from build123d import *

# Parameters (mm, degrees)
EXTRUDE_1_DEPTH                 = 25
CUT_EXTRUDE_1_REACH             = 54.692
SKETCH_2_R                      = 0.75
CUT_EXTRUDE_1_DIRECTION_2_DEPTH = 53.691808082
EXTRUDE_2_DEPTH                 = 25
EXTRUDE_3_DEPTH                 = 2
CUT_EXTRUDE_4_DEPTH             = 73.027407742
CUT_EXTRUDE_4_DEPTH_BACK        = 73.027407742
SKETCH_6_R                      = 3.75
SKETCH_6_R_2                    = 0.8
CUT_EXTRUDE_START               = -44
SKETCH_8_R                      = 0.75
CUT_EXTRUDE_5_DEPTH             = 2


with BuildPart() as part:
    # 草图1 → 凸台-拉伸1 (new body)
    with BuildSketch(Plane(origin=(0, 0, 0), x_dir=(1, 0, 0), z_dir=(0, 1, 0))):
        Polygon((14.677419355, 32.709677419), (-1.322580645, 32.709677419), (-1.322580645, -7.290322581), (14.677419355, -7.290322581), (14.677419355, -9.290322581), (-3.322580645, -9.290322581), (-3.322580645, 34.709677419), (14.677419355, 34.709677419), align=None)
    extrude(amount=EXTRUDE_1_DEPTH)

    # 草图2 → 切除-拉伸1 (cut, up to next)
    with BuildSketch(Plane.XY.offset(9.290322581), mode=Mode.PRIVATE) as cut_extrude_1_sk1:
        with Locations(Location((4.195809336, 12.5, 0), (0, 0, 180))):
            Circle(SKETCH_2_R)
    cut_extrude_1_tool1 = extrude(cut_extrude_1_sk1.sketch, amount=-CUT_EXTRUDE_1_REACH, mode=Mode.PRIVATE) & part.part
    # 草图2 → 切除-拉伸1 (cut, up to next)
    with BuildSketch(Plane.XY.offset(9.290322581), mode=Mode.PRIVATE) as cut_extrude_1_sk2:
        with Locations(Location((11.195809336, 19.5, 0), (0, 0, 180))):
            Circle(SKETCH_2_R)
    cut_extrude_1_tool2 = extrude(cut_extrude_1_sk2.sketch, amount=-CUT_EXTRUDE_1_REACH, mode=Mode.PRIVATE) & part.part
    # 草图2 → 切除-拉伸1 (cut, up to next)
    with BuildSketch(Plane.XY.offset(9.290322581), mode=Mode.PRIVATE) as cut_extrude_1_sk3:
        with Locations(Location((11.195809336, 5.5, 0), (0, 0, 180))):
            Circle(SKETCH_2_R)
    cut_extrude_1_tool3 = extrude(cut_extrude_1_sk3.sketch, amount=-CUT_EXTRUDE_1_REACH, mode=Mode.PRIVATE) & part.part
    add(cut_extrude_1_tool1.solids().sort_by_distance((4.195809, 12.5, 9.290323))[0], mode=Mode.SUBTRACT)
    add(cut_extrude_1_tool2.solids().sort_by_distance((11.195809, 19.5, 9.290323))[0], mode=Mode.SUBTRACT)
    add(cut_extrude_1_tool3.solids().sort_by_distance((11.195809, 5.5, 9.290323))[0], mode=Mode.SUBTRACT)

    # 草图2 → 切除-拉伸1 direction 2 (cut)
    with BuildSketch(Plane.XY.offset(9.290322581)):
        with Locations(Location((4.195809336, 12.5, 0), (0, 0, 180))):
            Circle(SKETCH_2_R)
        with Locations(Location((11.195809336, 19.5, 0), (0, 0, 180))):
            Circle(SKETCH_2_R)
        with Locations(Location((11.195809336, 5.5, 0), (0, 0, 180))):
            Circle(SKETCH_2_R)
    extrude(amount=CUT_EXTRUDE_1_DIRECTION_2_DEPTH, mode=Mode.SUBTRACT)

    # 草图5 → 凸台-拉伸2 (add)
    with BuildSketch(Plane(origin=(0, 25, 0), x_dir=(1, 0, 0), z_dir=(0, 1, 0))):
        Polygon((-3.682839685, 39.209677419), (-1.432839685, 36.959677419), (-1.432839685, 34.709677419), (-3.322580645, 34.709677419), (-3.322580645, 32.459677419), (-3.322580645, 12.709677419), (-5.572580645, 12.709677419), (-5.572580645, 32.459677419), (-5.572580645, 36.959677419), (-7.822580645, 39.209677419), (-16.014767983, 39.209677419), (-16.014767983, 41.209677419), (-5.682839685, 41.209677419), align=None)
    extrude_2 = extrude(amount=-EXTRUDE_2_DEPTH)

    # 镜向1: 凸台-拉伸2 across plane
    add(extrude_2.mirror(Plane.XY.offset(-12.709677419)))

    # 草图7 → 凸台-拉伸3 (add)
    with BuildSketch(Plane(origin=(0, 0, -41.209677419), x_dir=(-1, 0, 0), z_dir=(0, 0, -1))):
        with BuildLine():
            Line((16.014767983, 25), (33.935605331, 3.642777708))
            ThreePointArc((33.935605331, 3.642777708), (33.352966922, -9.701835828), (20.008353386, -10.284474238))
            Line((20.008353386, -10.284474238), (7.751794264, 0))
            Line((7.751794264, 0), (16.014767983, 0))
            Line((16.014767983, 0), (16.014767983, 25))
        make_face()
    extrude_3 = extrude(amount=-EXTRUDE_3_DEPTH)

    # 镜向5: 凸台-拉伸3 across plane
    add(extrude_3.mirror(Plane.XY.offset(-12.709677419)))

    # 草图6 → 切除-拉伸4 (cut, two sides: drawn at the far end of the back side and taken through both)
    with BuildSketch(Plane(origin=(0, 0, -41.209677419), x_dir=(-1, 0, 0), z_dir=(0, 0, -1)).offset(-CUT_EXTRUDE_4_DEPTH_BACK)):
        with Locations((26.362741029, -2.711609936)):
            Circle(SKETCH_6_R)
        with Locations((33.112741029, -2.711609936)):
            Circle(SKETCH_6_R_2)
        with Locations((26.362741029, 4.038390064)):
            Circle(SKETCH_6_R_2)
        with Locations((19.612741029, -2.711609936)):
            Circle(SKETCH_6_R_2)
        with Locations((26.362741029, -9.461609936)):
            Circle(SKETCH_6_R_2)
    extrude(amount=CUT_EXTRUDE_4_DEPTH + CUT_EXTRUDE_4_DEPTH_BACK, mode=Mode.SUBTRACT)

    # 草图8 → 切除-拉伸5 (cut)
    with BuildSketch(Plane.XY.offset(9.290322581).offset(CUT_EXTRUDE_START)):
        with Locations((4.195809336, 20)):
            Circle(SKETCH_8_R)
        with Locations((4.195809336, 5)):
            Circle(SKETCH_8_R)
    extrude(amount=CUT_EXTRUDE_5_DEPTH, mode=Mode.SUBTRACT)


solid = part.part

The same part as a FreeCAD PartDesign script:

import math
import FreeCAD as App
import Part
import Sketcher
from FreeCAD import Vector
Q = App.Units.Quantity

doc = App.newDocument("Part")
body = doc.addObject("PartDesign::Body", "Body")

sketch1 = body.newObject("Sketcher::SketchObject", "Sketch")
sketch1.AttachmentSupport = (doc.getObject("XZ_Plane"), [""])
sketch1.MapMode = "FlatFace"
sketch1.addGeometry(Part.LineSegment(Vector(-1.3, -32.7, 0), Vector(14.7, -32.7, 0)), False)
sketch1.addGeometry(Part.LineSegment(Vector(14.7, -32.7, 0), Vector(14.7, -34.7, 0)), False)
sketch1.addGeometry(Part.LineSegment(Vector(14.7, -34.7, 0), Vector(-3.3, -34.7, 0)), False)
sketch1.addGeometry(Part.LineSegment(Vector(-3.3, -34.7, 0), Vector(-3.3, 9.3, 0)), False)
sketch1.addGeometry(Part.LineSegment(Vector(-3.3, 9.3, 0), Vector(14.7, 9.3, 0)), False)
sketch1.addGeometry(Part.LineSegment(Vector(14.7, 9.3, 0), Vector(14.7, 7.3, 0)), False)
sketch1.addGeometry(Part.LineSegment(Vector(14.7, 7.3, 0), Vector(-1.3, 7.3, 0)), False)
sketch1.addGeometry(Part.LineSegment(Vector(-1.3, 7.3, 0), Vector(-1.3, -32.7, 0)), False)
sketch1.addConstraint(Sketcher.Constraint("Coincident", 0, 2, 1, 1))
sketch1.addConstraint(Sketcher.Constraint("Coincident", 1, 2, 2, 1))
sketch1.addConstraint(Sketcher.Constraint("Coincident", 2, 2, 3, 1))
sketch1.addConstraint(Sketcher.Constraint("Coincident", 3, 2, 4, 1))
sketch1.addConstraint(Sketcher.Constraint("Coincident", 4, 2, 5, 1))
sketch1.addConstraint(Sketcher.Constraint("Coincident", 5, 2, 6, 1))
sketch1.addConstraint(Sketcher.Constraint("Coincident", 6, 2, 7, 1))
sketch1.addConstraint(Sketcher.Constraint("Coincident", 7, 2, 0, 1))
sketch1.addConstraint(Sketcher.Constraint("Horizontal", 0))
sketch1.addConstraint(Sketcher.Constraint("Vertical", 1))
sketch1.addConstraint(Sketcher.Constraint("Horizontal", 2))
sketch1.addConstraint(Sketcher.Constraint("Vertical", 3))
sketch1.addConstraint(Sketcher.Constraint("Horizontal", 4))
sketch1.addConstraint(Sketcher.Constraint("Vertical", 5))
sketch1.addConstraint(Sketcher.Constraint("Horizontal", 6))
sketch1.addConstraint(Sketcher.Constraint("Vertical", 7))
sketch1.addConstraint(Sketcher.Constraint("Vertical", 1, 2, 4, 2))
sketch1.addConstraint(Sketcher.Constraint("Equal", 1, 5))
sketch1.addConstraint(Sketcher.Constraint("DistanceX", 0, 1, 0, 2, Q("16 mm")))
sketch1.addConstraint(Sketcher.Constraint("DistanceX", 2, 2, 2, 1, Q("18 mm")))
sketch1.addConstraint(Sketcher.Constraint("DistanceY", 1, 2, 1, 1, Q("2 mm")))
sketch1.addConstraint(Sketcher.Constraint("DistanceY", 3, 1, 3, 2, Q("44 mm")))
sketch1.addConstraint(Sketcher.Constraint("DistanceX", -1, 1, 0, 2, Q("14.677419 mm")))
sketch1.addConstraint(Sketcher.Constraint("DistanceY", 0, 2, -1, 1, Q("32.709677 mm")))
pad1 = body.newObject("PartDesign::Pad", "Pad")
pad1.Profile = sketch1
pad1.Length = 25
pad1.Reversed = True

sketch2 = body.newObject("Sketcher::SketchObject", "Sketch001")
sketch2.AttachmentSupport = (doc.getObject("XY_Plane"), [""])
sketch2.MapMode = "FlatFace"
sketch2.AttachmentOffset = App.Placement(Vector(0, 0, 9.290323), App.Rotation())
sketch2.addGeometry(Part.Circle(Vector(4.2, 12.5, 0), Vector(0, 0, 1), 0.8), False)
sketch2.addConstraint(Sketcher.Constraint("Diameter", 0, Q("1.5 mm")))
sketch2.addConstraint(Sketcher.Constraint("DistanceY", -1, 1, 0, 3, Q("12.5 mm")))
sketch2.addConstraint(Sketcher.Constraint("DistanceX", -1, 1, 0, 3, Q("4.195809 mm")))
pocket1 = body.newObject("PartDesign::Pocket", "Pocket")
pocket1.Profile = sketch2
pocket1.Type = "UpToFirst"

sketch3 = body.newObject("Sketcher::SketchObject", "Sketch002")
sketch3.AttachmentSupport = (doc.getObject("XY_Plane"), [""])
sketch3.MapMode = "FlatFace"
sketch3.AttachmentOffset = App.Placement(Vector(0, 0, 9.290323), App.Rotation())
sketch3.addGeometry(Part.Circle(Vector(11.2, 19.5, 0), Vector(0, 0, 1), 0.8), False)
sketch3.addConstraint(Sketcher.Constraint("Diameter", 0, Q("1.5 mm")))
sketch3.addConstraint(Sketcher.Constraint("DistanceY", -1, 1, 0, 3, Q("19.5 mm")))
sketch3.addConstraint(Sketcher.Constraint("DistanceX", -1, 1, 0, 3, Q("11.195809 mm")))
pocket2 = body.newObject("PartDesign::Pocket", "Pocket001")
pocket2.Profile = sketch3
pocket2.Type = "UpToFirst"

sketch4 = body.newObject("Sketcher::SketchObject", "Sketch003")
sketch4.AttachmentSupport = (doc.getObject("XY_Plane"), [""])
sketch4.MapMode = "FlatFace"
sketch4.AttachmentOffset = App.Placement(Vector(0, 0, 9.290323), App.Rotation())
sketch4.addGeometry(Part.Circle(Vector(11.2, 5.5, 0), Vector(0, 0, 1), 0.8), False)
sketch4.addConstraint(Sketcher.Constraint("Diameter", 0, Q("1.5 mm")))
sketch4.addConstraint(Sketcher.Constraint("DistanceY", -1, 1, 0, 3, Q("5.5 mm")))
sketch4.addConstraint(Sketcher.Constraint("DistanceX", -1, 1, 0, 3, Q("11.195809 mm")))
pocket3 = body.newObject("PartDesign::Pocket", "Pocket002")
pocket3.Profile = sketch4
pocket3.Type = "UpToFirst"

sketch5 = body.newObject("Sketcher::SketchObject", "Sketch004")
sketch5.AttachmentSupport = (doc.getObject("XY_Plane"), [""])
sketch5.MapMode = "FlatFace"
sketch5.AttachmentOffset = App.Placement(Vector(0, 0, 9.290323), App.Rotation())
sketch5.addGeometry(Part.Circle(Vector(4.2, 12.5, 0), Vector(0, 0, 1), 0.8), False)
sketch5.addGeometry(Part.Circle(Vector(11.2, 19.5, 0), Vector(0, 0, 1), 0.8), False)
sketch5.addGeometry(Part.Circle(Vector(11.2, 5.5, 0), Vector(0, 0, 1), 0.8), False)
sketch5.addConstraint(Sketcher.Constraint("Equal", 0, 1))
sketch5.addConstraint(Sketcher.Constraint("Equal", 1, 2))
sketch5.addConstraint(Sketcher.Constraint("Vertical", 1, 3, 2, 3))
sketch5.addConstraint(Sketcher.Constraint("Diameter", 0, Q("1.5 mm")))
sketch5.addConstraint(Sketcher.Constraint("DistanceX", 0, 3, 1, 3, Q("7 mm")))
sketch5.addConstraint(Sketcher.Constraint("DistanceY", 0, 3, 1, 3, Q("7 mm")))
sketch5.addConstraint(Sketcher.Constraint("DistanceY", 2, 3, 0, 3, Q("7 mm")))
sketch5.addConstraint(Sketcher.Constraint("DistanceY", -1, 1, 0, 3, Q("12.5 mm")))
sketch5.addConstraint(Sketcher.Constraint("DistanceX", -1, 1, 0, 3, Q("4.195809 mm")))
pocket4 = body.newObject("PartDesign::Pocket", "Pocket003")
pocket4.Profile = sketch5
pocket4.Length = 53.691808
pocket4.Reversed = True

sketch6 = body.newObject("Sketcher::SketchObject", "Sketch005")
sketch6.AttachmentSupport = (doc.getObject("XZ_Plane"), [""])
sketch6.MapMode = "FlatFace"
sketch6.AttachmentOffset = App.Placement(Vector(0, 0, -25), App.Rotation())
sketch6.addGeometry(Part.LineSegment(Vector(-1.4, -37, 0), Vector(-5.7, -41.2, 0)), False)
sketch6.addGeometry(Part.LineSegment(Vector(-5.7, -41.2, 0), Vector(-16, -41.2, 0)), False)
sketch6.addGeometry(Part.LineSegment(Vector(-16, -41.2, 0), Vector(-16, -39.2, 0)), False)
sketch6.addGeometry(Part.LineSegment(Vector(-16, -39.2, 0), Vector(-7.8, -39.2, 0)), False)
sketch6.addGeometry(Part.LineSegment(Vector(-7.8, -39.2, 0), Vector(-5.6, -37, 0)), False)
sketch6.addGeometry(Part.LineSegment(Vector(-5.6, -37, 0), Vector(-5.6, -12.7, 0)), False)
sketch6.addGeometry(Part.LineSegment(Vector(-5.6, -12.7, 0), Vector(-3.3, -12.7, 0)), False)
sketch6.addGeometry(Part.LineSegment(Vector(-3.3, -12.7, 0), Vector(-3.3, -34.7, 0)), False)
sketch6.addGeometry(Part.LineSegment(Vector(-3.3, -34.7, 0), Vector(-1.4, -34.7, 0)), False)
sketch6.addGeometry(Part.LineSegment(Vector(-1.4, -34.7, 0), Vector(-1.4, -37, 0)), False)
sketch6.addConstraint(Sketcher.Constraint("Coincident", 0, 2, 1, 1))
sketch6.addConstraint(Sketcher.Constraint("Coincident", 1, 2, 2, 1))
sketch6.addConstraint(Sketcher.Constraint("Coincident", 2, 2, 3, 1))
sketch6.addConstraint(Sketcher.Constraint("Coincident", 3, 2, 4, 1))
sketch6.addConstraint(Sketcher.Constraint("Coincident", 4, 2, 5, 1))
sketch6.addConstraint(Sketcher.Constraint("Coincident", 5, 2, 6, 1))
sketch6.addConstraint(Sketcher.Constraint("Coincident", 6, 2, 7, 1))
sketch6.addConstraint(Sketcher.Constraint("Coincident", 7, 2, 8, 1))
sketch6.addConstraint(Sketcher.Constraint("Coincident", 8, 2, 9, 1))
sketch6.addConstraint(Sketcher.Constraint("Coincident", 9, 2, 0, 1))
sketch6.addConstraint(Sketcher.Constraint("Horizontal", 1))
sketch6.addConstraint(Sketcher.Constraint("Vertical", 2))
sketch6.addConstraint(Sketcher.Constraint("Horizontal", 3))
sketch6.addConstraint(Sketcher.Constraint("Vertical", 5))
sketch6.addConstraint(Sketcher.Constraint("Horizontal", 6))
sketch6.addConstraint(Sketcher.Constraint("Vertical", 7))
sketch6.addConstraint(Sketcher.Constraint("Horizontal", 8))
sketch6.addConstraint(Sketcher.Constraint("Vertical", 9))
sketch6.addConstraint(Sketcher.Constraint("Parallel", 0, 4))
sketch6.addConstraint(Sketcher.Constraint("Horizontal", 4, 2, 9, 2))
sketch6.addConstraint(Sketcher.Constraint("Equal", 6, 9))
sketch6.addConstraint(Sketcher.Constraint("DistanceY", 2, 1, 2, 2, Q("2 mm")))
sketch6.addConstraint(Sketcher.Constraint("DistanceY", 7, 2, 7, 1, Q("22 mm")))
sketch6.addConstraint(Sketcher.Constraint("Angle", 0, Q("-135 deg")))
sketch6.addConstraint(Sketcher.Constraint("DistanceX", 6, 1, 6, 2, Q("2.25 mm")))
sketch6.addConstraint(Sketcher.Constraint("DistanceY", 3, 2, 5, 2, Q("26.5 mm")))
sketch6.addConstraint(Sketcher.Constraint("DistanceX", 1, 2, 1, 1, Q("10.331928 mm")))
sketch6.addConstraint(Sketcher.Constraint("DistanceX", 8, 1, 8, 2, Q("1.889741 mm")))
sketch6.addConstraint(Sketcher.Constraint("DistanceX", 0, 2, -1, 1, Q("5.68284 mm")))
sketch6.addConstraint(Sketcher.Constraint("DistanceY", 0, 2, -1, 1, Q("41.209677 mm")))
pad2 = body.newObject("PartDesign::Pad", "Pad001")
pad2.Profile = sketch6
pad2.Length = 25
doc.recompute()

datumplane = body.newObject("PartDesign::Plane", "DatumPlane")
datumplane.AttachmentSupport = (doc.getObject("XY_Plane"), [""])
datumplane.MapMode = "FlatFace"
datumplane.AttachmentOffset = App.Placement(Vector(0, 0, -12.709677), App.Rotation())
mirrored = body.newObject("PartDesign::Mirrored", "Mirrored")
mirrored.Originals = [pad2]
mirrored.MirrorPlane = (datumplane, [""])
body.Tip = mirrored

sketch7 = body.newObject("Sketcher::SketchObject", "Sketch006")
sketch7.AttachmentSupport = (doc.getObject("XY_Plane"), [""])
sketch7.MapMode = "FlatFace"
sketch7.AttachmentOffset = App.Placement(Vector(0, 0, -41.209677), App.Rotation())
sketch7.addGeometry(Part.LineSegment(Vector(-34, 4, 0), Vector(-16, 25, 0)), False)
sketch7.addGeometry(Part.LineSegment(Vector(-16, 25, 0), Vector(-16, 0, 0)), False)
sketch7.addGeometry(Part.LineSegment(Vector(-16, 0, 0), Vector(-8, 0, 0)), False)
sketch7.addGeometry(Part.LineSegment(Vector(-8, 0, 0), Vector(-20, -10, 0)), False)
sketch7.addGeometry(Part.ArcOfCircle(Part.Circle(Vector(-26, -3, 0), Vector(0, 0, 1), 10), math.radians(140), math.radians(310)), False)
sketch7.addConstraint(Sketcher.Constraint("Coincident", 0, 2, 1, 1))
sketch7.addConstraint(Sketcher.Constraint("Coincident", 1, 2, 2, 1))
sketch7.addConstraint(Sketcher.Constraint("Coincident", 2, 2, 3, 1))
sketch7.addConstraint(Sketcher.Constraint("Tangent", 3, 2, 4, 2))
sketch7.addConstraint(Sketcher.Constraint("Tangent", 4, 1, 0, 1))
sketch7.addConstraint(Sketcher.Constraint("Vertical", 1))
sketch7.addConstraint(Sketcher.Constraint("Horizontal", 2))
sketch7.addConstraint(Sketcher.Constraint("PointOnObject", 1, 2, -1))
sketch7.addConstraint(Sketcher.Constraint("DistanceY", 1, 2, 1, 1, Q("25 mm")))
sketch7.addConstraint(Sketcher.Constraint("Angle", 0, Q("50 deg")))
sketch7.addConstraint(Sketcher.Constraint("Angle", 3, Q("-140 deg")))
sketch7.addConstraint(Sketcher.Constraint("Radius", 4, Q("9.885672 mm")))
sketch7.addConstraint(Sketcher.Constraint("Distance", 3, Q("15.999802 mm")))
sketch7.addConstraint(Sketcher.Constraint("DistanceX", 4, 3, -1, 1, Q("26.362741 mm")))
pad3 = body.newObject("PartDesign::Pad", "Pad002")
pad3.Profile = sketch7
pad3.Length = 2
doc.recompute()

datumplane2 = body.newObject("PartDesign::Plane", "DatumPlane001")
datumplane2.AttachmentSupport = (doc.getObject("XY_Plane"), [""])
datumplane2.MapMode = "FlatFace"
datumplane2.AttachmentOffset = App.Placement(Vector(0, 0, -12.709677), App.Rotation())
mirrored2 = body.newObject("PartDesign::Mirrored", "Mirrored001")
mirrored2.Originals = [pad3]
mirrored2.MirrorPlane = (datumplane2, [""])
body.Tip = mirrored2

sketch8 = body.newObject("Sketcher::SketchObject", "Sketch007")
sketch8.AttachmentSupport = (doc.getObject("XY_Plane"), [""])
sketch8.MapMode = "FlatFace"
sketch8.AttachmentOffset = App.Placement(Vector(0, 0, -41.209677), App.Rotation())
sketch8.addGeometry(Part.Circle(Vector(-26.4, -2.7, 0), Vector(0, 0, 1), 3.8), False)
sketch8.addGeometry(Part.Circle(Vector(-33.1, -2.7, 0), Vector(0, 0, 1), 0.8), False)
sketch8.addGeometry(Part.Circle(Vector(-26.4, 4, 0), Vector(0, 0, 1), 0.8), False)
sketch8.addGeometry(Part.Circle(Vector(-19.6, -2.7, 0), Vector(0, 0, 1), 0.8), False)
sketch8.addGeometry(Part.Circle(Vector(-26.4, -9.5, 0), Vector(0, 0, 1), 0.8), False)
sketch8.addConstraint(Sketcher.Constraint("Equal", 1, 2))
sketch8.addConstraint(Sketcher.Constraint("Equal", 2, 3))
sketch8.addConstraint(Sketcher.Constraint("Equal", 3, 4))
sketch8.addConstraint(Sketcher.Constraint("Horizontal", 0, 3, 1, 3))
sketch8.addConstraint(Sketcher.Constraint("Horizontal", 1, 3, 3, 3))
sketch8.addConstraint(Sketcher.Constraint("Vertical", 0, 3, 2, 3))
sketch8.addConstraint(Sketcher.Constraint("Vertical", 2, 3, 4, 3))
sketch8.addConstraint(Sketcher.Constraint("Diameter", 0, Q("7.5 mm")))
sketch8.addConstraint(Sketcher.Constraint("Diameter", 1, Q("1.6 mm")))
sketch8.addConstraint(Sketcher.Constraint("DistanceX", 1, 3, 3, 3, Q("13.5 mm")))
sketch8.addConstraint(Sketcher.Constraint("DistanceY", 4, 3, 2, 3, Q("13.5 mm")))
sketch8.addConstraint(Sketcher.Constraint("DistanceX", 1, 3, 0, 3, Q("6.75 mm")))
sketch8.addConstraint(Sketcher.Constraint("DistanceY", 0, 3, 2, 3, Q("6.75 mm")))
sketch8.addConstraint(Sketcher.Constraint("DistanceX", 0, 3, -1, 1, Q("26.362741 mm")))
sketch8.addConstraint(Sketcher.Constraint("DistanceY", 0, 3, -1, 1, Q("2.71161 mm")))
pocket5 = body.newObject("PartDesign::Pocket", "Pocket004")
pocket5.Profile = sketch8
pocket5.Type = "ThroughAll"
pocket5.Midplane = True

sketch9 = body.newObject("Sketcher::SketchObject", "Sketch008")
sketch9.AttachmentSupport = (doc.getObject("XY_Plane"), [""])
sketch9.MapMode = "FlatFace"
sketch9.AttachmentOffset = App.Placement(Vector(0, 0, -34.709677), App.Rotation())
sketch9.addGeometry(Part.Circle(Vector(4.2, 20, 0), Vector(0, 0, 1), 0.8), False)
sketch9.addGeometry(Part.Circle(Vector(4.2, 5, 0), Vector(0, 0, 1), 0.8), False)
sketch9.addConstraint(Sketcher.Constraint("Equal", 0, 1))
sketch9.addConstraint(Sketcher.Constraint("Vertical", 0, 3, 1, 3))
sketch9.addConstraint(Sketcher.Constraint("Diameter", 0, Q("1.5 mm")))
sketch9.addConstraint(Sketcher.Constraint("DistanceY", -1, 1, 0, 3, Q("20 mm")))
sketch9.addConstraint(Sketcher.Constraint("DistanceY", -1, 1, 1, 3, Q("5 mm")))
sketch9.addConstraint(Sketcher.Constraint("DistanceX", -1, 1, 0, 3, Q("4.195809 mm")))
pocket6 = body.newObject("PartDesign::Pocket", "Pocket005")
pocket6.Profile = sketch9
pocket6.Length = 2
pocket6.Reversed = True

doc.recompute()
